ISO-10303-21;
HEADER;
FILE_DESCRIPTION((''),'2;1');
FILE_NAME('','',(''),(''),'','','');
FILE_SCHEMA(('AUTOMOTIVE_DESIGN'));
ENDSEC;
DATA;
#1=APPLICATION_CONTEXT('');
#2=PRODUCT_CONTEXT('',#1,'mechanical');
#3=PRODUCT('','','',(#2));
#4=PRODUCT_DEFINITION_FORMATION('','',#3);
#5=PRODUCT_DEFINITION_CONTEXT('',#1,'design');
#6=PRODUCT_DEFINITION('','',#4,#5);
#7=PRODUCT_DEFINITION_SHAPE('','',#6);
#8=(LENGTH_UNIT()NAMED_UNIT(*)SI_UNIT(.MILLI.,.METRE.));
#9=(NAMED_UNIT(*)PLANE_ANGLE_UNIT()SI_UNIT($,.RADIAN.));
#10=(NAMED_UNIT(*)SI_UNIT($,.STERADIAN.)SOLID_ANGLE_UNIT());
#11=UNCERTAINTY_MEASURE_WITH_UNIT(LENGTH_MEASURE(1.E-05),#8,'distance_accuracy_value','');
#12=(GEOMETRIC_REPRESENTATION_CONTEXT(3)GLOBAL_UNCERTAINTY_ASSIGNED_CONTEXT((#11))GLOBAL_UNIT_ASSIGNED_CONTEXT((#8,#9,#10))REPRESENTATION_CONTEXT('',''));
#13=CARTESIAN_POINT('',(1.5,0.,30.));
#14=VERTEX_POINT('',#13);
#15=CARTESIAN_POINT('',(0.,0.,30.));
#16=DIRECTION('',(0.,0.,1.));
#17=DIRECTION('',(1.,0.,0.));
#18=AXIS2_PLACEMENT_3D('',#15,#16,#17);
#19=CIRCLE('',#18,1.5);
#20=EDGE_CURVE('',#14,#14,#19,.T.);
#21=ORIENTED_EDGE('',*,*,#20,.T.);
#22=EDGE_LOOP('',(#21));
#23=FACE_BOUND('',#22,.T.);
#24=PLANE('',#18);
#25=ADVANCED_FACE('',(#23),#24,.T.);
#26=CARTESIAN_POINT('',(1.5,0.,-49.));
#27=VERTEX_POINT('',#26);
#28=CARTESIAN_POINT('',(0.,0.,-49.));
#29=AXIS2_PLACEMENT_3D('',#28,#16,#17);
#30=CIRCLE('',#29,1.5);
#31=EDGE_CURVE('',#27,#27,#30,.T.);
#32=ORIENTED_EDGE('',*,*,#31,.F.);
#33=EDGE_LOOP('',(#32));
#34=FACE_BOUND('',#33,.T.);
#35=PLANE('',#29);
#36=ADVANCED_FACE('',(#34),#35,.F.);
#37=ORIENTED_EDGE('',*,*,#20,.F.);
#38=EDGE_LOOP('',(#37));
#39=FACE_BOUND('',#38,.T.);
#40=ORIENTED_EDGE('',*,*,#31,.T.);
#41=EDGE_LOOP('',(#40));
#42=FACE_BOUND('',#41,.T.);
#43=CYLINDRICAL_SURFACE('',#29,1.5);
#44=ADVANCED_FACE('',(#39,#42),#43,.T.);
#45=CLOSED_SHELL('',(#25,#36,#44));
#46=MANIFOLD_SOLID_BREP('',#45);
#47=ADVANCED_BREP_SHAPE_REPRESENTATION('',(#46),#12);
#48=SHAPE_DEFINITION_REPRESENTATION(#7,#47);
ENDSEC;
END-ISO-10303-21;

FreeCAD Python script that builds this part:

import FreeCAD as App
import Part
import Sketcher

V = App.Vector
Q = App.Units.Quantity

doc = App.newDocument("Part")
body = doc.addObject("PartDesign::Body", "Body")

# Sketch on XY plane
sketch1 = body.newObject("Sketcher::SketchObject", "Sketch")
sketch1.AttachmentSupport = (doc.getObject("XY_Plane"), [""])
sketch1.MapMode = "FlatFace"
sketch1.addGeometry(Part.Circle(V(0, 0, 0), V(0, 0, 1), 1.5), False)
sketch1.addConstraint([
    Sketcher.Constraint("Coincident", 0, 3, -1, 1),
    Sketcher.Constraint("Diameter", 0, Q("3 mm")),
])
pad1 = body.newObject("PartDesign::Pad", "Pad")
pad1.Profile = sketch1
pad1.Type = "TwoLengths"
pad1.Length = 30
pad1.Length2 = 49

doc.recompute()
